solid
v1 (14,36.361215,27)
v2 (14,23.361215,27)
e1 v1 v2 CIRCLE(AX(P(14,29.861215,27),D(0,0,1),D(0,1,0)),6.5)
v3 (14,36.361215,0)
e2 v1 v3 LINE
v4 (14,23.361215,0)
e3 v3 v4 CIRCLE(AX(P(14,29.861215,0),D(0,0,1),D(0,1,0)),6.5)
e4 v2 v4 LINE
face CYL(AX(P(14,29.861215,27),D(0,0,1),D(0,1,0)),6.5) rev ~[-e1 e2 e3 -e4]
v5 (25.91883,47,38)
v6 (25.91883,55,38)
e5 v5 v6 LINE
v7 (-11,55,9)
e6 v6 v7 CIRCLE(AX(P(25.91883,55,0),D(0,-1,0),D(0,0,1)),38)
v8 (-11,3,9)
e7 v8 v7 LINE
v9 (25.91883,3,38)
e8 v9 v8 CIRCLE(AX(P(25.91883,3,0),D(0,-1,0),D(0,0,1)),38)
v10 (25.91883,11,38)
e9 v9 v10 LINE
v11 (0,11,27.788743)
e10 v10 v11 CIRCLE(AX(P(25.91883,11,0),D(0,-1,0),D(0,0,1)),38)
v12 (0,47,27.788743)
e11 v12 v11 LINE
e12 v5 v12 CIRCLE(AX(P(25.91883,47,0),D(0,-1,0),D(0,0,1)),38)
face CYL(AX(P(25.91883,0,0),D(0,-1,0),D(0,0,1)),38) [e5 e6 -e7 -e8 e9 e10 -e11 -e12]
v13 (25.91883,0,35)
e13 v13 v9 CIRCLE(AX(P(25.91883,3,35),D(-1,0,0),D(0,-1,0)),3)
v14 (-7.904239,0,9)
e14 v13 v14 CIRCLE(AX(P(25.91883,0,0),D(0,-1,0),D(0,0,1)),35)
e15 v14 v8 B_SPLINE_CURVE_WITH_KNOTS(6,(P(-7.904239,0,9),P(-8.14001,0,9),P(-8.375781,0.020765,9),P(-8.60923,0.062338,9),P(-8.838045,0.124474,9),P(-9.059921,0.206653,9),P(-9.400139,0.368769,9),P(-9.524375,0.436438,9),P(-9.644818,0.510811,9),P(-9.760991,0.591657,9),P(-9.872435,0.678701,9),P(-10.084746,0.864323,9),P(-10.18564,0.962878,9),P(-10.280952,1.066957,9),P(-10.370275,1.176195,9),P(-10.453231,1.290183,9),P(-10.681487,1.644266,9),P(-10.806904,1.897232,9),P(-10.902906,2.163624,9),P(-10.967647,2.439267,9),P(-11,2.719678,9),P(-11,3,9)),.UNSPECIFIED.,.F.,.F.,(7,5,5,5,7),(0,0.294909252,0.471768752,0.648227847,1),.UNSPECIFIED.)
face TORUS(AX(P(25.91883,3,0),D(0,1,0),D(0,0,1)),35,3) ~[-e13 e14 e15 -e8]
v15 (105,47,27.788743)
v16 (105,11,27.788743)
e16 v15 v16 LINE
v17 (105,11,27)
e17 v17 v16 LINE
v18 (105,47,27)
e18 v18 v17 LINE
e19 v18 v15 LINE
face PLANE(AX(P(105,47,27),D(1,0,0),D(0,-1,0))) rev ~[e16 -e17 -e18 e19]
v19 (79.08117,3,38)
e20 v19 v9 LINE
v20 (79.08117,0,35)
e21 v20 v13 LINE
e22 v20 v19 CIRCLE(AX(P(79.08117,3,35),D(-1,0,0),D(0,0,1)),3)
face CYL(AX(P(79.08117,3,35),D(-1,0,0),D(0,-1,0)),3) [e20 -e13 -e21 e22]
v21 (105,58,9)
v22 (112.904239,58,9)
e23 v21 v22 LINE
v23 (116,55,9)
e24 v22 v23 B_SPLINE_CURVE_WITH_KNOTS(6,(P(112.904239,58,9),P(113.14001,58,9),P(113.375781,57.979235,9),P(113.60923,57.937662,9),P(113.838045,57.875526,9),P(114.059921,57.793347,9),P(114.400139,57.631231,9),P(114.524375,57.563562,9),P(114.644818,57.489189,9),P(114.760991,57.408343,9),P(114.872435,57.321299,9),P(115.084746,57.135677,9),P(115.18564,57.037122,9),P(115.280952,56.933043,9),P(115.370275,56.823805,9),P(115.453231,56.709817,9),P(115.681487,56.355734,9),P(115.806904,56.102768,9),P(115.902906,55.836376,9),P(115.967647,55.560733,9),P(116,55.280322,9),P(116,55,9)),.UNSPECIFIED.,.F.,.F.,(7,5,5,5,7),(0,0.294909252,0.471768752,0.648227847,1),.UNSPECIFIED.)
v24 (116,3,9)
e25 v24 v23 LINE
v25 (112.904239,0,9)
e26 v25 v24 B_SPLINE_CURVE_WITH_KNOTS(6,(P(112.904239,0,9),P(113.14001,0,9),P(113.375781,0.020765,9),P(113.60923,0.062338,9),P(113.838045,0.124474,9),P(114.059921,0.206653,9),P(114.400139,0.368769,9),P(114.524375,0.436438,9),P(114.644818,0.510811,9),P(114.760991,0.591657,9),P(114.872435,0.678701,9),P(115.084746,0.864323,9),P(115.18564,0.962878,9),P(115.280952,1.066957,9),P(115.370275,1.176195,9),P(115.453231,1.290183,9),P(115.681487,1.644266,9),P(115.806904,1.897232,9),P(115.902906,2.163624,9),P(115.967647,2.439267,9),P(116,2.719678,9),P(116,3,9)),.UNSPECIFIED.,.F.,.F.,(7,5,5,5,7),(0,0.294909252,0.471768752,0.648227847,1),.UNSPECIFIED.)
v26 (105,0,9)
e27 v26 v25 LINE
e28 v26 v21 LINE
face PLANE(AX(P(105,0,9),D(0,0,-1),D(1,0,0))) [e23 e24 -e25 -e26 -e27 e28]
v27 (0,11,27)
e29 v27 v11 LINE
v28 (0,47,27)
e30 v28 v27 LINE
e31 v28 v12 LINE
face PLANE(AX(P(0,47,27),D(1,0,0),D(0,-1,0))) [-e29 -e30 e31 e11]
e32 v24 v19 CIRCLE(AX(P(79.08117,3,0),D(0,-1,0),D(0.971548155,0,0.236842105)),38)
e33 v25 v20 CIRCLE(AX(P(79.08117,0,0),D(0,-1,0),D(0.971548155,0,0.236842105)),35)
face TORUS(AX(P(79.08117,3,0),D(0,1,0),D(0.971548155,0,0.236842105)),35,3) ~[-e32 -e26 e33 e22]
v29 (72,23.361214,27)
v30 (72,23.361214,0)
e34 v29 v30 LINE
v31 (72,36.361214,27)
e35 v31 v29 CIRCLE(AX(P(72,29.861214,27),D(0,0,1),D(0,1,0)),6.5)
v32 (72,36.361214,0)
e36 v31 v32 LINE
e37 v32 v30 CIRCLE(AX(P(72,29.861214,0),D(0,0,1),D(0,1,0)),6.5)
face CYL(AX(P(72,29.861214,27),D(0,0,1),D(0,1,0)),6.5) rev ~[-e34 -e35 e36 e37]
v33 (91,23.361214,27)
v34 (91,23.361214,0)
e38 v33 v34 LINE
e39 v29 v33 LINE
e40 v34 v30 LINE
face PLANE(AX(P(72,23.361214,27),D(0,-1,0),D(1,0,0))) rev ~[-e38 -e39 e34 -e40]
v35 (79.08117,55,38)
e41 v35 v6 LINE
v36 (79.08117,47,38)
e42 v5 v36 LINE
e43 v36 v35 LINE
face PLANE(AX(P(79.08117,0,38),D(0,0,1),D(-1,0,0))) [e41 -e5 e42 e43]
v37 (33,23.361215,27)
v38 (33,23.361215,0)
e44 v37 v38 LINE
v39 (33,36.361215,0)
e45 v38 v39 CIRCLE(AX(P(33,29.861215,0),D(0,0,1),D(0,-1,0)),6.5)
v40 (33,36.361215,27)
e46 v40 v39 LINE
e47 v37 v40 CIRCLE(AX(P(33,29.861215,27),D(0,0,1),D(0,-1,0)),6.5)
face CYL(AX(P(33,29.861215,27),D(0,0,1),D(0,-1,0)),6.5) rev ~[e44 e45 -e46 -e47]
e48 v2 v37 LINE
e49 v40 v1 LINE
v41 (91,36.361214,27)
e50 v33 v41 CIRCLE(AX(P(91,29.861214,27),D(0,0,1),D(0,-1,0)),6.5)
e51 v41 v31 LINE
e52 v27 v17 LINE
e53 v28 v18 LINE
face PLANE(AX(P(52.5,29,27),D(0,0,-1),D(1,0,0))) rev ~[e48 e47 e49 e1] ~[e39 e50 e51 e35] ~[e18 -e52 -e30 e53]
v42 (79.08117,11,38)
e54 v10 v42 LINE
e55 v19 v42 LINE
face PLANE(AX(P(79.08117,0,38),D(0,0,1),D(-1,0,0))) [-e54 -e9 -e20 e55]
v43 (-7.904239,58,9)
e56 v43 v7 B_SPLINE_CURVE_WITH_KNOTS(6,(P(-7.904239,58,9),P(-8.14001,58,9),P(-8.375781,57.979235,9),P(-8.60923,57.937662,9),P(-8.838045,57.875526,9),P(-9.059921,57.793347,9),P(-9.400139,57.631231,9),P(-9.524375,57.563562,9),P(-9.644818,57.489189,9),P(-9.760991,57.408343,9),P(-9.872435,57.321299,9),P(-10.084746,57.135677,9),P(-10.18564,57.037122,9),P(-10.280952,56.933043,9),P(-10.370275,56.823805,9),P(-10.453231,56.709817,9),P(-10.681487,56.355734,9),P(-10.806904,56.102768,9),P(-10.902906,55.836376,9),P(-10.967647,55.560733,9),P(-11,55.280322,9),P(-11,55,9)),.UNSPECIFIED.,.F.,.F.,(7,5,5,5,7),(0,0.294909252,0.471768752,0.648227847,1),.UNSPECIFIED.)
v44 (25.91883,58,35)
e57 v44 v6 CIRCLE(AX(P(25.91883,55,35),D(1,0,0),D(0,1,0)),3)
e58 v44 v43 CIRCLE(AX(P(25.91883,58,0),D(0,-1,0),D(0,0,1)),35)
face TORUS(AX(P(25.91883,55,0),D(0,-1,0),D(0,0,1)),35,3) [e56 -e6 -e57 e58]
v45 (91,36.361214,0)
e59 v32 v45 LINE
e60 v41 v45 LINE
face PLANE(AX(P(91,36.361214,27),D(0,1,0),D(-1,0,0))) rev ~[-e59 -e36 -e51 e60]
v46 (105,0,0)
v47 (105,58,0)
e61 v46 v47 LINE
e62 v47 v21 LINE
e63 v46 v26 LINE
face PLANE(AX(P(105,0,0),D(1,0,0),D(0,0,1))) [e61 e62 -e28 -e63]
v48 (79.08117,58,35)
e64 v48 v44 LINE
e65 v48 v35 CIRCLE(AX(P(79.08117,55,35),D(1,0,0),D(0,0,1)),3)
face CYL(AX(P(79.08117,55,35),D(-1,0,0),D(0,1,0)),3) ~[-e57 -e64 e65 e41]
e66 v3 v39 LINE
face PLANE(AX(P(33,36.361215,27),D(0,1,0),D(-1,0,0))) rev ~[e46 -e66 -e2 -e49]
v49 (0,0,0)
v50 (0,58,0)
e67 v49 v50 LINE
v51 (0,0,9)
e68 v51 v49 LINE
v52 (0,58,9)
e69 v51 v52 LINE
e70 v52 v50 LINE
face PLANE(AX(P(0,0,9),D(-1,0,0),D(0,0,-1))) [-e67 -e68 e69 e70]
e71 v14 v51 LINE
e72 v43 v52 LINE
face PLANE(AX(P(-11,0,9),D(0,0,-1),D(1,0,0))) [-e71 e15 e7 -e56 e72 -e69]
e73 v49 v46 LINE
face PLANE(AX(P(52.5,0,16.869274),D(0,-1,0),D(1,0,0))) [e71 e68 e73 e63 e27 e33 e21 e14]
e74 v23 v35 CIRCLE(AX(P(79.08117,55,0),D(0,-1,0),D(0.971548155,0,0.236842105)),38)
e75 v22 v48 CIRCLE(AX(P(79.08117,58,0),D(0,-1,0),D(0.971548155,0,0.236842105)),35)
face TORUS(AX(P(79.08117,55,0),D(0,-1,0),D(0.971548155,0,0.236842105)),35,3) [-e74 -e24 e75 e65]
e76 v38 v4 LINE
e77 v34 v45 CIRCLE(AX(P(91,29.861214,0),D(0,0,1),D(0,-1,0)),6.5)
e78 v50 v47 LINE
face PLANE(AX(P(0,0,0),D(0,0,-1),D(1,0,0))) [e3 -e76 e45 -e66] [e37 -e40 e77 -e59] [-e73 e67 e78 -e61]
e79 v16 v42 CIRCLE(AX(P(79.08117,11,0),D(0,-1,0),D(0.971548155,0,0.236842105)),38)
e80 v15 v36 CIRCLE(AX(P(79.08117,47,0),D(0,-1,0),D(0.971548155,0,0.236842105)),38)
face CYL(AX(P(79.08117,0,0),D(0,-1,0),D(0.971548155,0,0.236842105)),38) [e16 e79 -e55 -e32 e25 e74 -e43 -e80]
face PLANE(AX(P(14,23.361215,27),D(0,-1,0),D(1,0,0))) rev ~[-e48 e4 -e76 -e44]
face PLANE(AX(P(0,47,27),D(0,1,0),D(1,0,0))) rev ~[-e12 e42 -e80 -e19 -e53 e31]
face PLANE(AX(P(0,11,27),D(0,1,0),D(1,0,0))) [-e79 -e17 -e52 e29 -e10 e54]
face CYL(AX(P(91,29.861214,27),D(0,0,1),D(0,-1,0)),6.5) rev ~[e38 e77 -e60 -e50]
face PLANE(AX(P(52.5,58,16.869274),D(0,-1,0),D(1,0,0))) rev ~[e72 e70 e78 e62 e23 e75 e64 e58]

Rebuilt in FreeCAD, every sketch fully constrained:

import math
import FreeCAD as App
import Part
import Sketcher
from FreeCAD import Vector


def edges_at(feature, points):
    """Names of the edges that pass closest to the given points."""
    edges = feature.Shape.Edges
    near = lambda p: min(range(len(edges)), key=lambda i: edges[i].distToShape(Part.Vertex(*p))[0])
    return sorted({f"Edge{near(p) + 1}" for p in points})

doc = App.newDocument("Part")
body = doc.addObject("PartDesign::Body", "Body")

sketch1 = doc.addObject("Sketcher::SketchObject", "Sketch")
body.addObject(sketch1)
sketch1.AttachmentSupport = (doc.XZ_Plane, [""])
sketch1.MapMode = "FlatFace"
sketch1.addGeometry([
    Part.LineSegment(Vector(0, 9, 0), Vector(0, 0, 0)),
    Part.LineSegment(Vector(0, 0, 0), Vector(105, 0, 0)),
    Part.LineSegment(Vector(105, 0, 0), Vector(105, 9, 0)),
    Part.LineSegment(Vector(105, 9, 0), Vector(116, 9, 0)),
    Part.ArcOfCircle(Part.Circle(Vector(79.08117, 0, 0), Vector(0, 0, 1), 38), math.radians(13.700233), math.radians(90)),
    Part.LineSegment(Vector(79.08117, 38, 0), Vector(25.91883, 38, 0)),
    Part.ArcOfCircle(Part.Circle(Vector(25.91883, 0, 0), Vector(0, 0, 1), 38), math.radians(90), math.radians(166.299767)),
    Part.LineSegment(Vector(-11, 9, 0), Vector(0, 9, 0)),
], False)
sketch1.addConstraint([
    Sketcher.Constraint("Coincident", 0, 2, 1, 1),
    Sketcher.Constraint("Coincident", 1, 2, 2, 1),
    Sketcher.Constraint("Coincident", 2, 2, 3, 1),
    Sketcher.Constraint("Coincident", 3, 2, 4, 1),
    Sketcher.Constraint("Tangent", 4, 2, 5, 1),
    Sketcher.Constraint("Tangent", 5, 2, 6, 1),
    Sketcher.Constraint("Coincident", 6, 2, 7, 1),
    Sketcher.Constraint("Coincident", 7, 2, 0, 1),
    Sketcher.Constraint("Vertical", 0),
    Sketcher.Constraint("Horizontal", 1),
    Sketcher.Constraint("Vertical", 2),
    Sketcher.Constraint("Horizontal", 3),
    Sketcher.Constraint("Horizontal", 5),
    Sketcher.Constraint("Horizontal", 7),
    Sketcher.Constraint("Coincident", 0, 2, -1, 1),
    Sketcher.Constraint("Equal", 4, 6),
    Sketcher.Constraint("PointOnObject", 4, 3, -1),
    Sketcher.Constraint("Horizontal", 3, 2, 6, 2),
    Sketcher.Constraint("Equal", 3, 7),
    Sketcher.Constraint("Radius", 4, 38.0),
    Sketcher.Constraint("DistanceX", 1, 1, 1, 2, 105.0),
    Sketcher.Constraint("DistanceX", 3, 1, 3, 2, 11.0),
    Sketcher.Constraint("DistanceY", 0, 2, 0, 1, 9.0),
])
pad1 = doc.addObject("PartDesign::Pad", "Pad")
body.addObject(pad1)
pad1.Profile = sketch1
pad1.Length = 58
pad1.Reversed = True

sketch2 = doc.addObject("Sketcher::SketchObject", "Sketch001")
body.addObject(sketch2)
sketch2.AttachmentSupport = (doc.XY_Plane, [""])
sketch2.MapMode = "FlatFace"
sketch2.AttachmentOffset = App.Placement(Vector(0, 0, 27), App.Rotation())
sketch2.addGeometry([
    Part.LineSegment(Vector(0, 11, 0), Vector(0, 47, 0)),
    Part.LineSegment(Vector(0, 47, 0), Vector(105, 47, 0)),
    Part.LineSegment(Vector(105, 47, 0), Vector(105, 11, 0)),
    Part.LineSegment(Vector(105, 11, 0), Vector(0, 11, 0)),
], False)
sketch2.addConstraint([
    Sketcher.Constraint("Coincident", 0, 2, 1, 1),
    Sketcher.Constraint("Coincident", 1, 2, 2, 1),
    Sketcher.Constraint("Coincident", 2, 2, 3, 1),
    Sketcher.Constraint("Coincident", 3, 2, 0, 1),
    Sketcher.Constraint("Vertical", 0),
    Sketcher.Constraint("Horizontal", 1),
    Sketcher.Constraint("Vertical", 2),
    Sketcher.Constraint("Horizontal", 3),
    Sketcher.Constraint("PointOnObject", 0, 2, -2),
    Sketcher.Constraint("DistanceX", 1, 1, 1, 2, 105.0),
    Sketcher.Constraint("DistanceY", 0, 1, 0, 2, 36.0),
    Sketcher.Constraint("DistanceY", -1, 1, 0, 2, 47.0),
])
pocket1 = doc.addObject("PartDesign::Pocket", "Pocket")
body.addObject(pocket1)
pocket1.Profile = sketch2
pocket1.Length = 11
pocket1.Reversed = True
doc.recompute()

fillet = doc.addObject("PartDesign::Fillet", "Fillet")
body.addObject(fillet)
fillet.Base = (pocket1, edges_at(pocket1, [(102.555, 58, 29.883), (52.5, 58, 38), (2.445, 58, 29.883)]))
fillet.Radius = 3
doc.recompute()

fillet2 = doc.addObject("PartDesign::Fillet", "Fillet001")
body.addObject(fillet2)
fillet2.Base = (fillet, edges_at(fillet, [(52.5, 0, 38), (2.445, 0, 29.883), (102.555, 0, 29.883)]))
fillet2.Radius = 3

sketch3 = doc.addObject("Sketcher::SketchObject", "Sketch002")
body.addObject(sketch3)
sketch3.AttachmentSupport = (doc.XY_Plane, [""])
sketch3.MapMode = "FlatFace"
sketch3.AttachmentOffset = App.Placement(Vector(0, 0, 27), App.Rotation())
sketch3.addGeometry([
    Part.LineSegment(Vector(72, 23.361214, 0), Vector(91, 23.361214, 0)),
    Part.ArcOfCircle(Part.Circle(Vector(91, 29.861214, 0), Vector(0, 0, 1), 6.5), math.radians(-90), math.radians(90)),
    Part.LineSegment(Vector(91, 36.361214, 0), Vector(72, 36.361214, 0)),
    Part.ArcOfCircle(Part.Circle(Vector(72, 29.861214, 0), Vector(0, 0, 1), 6.5), math.radians(90), math.radians(270)),
    Part.LineSegment(Vector(33, 36.361215, 0), Vector(14, 36.361215, 0)),
    Part.ArcOfCircle(Part.Circle(Vector(14, 29.861215, 0), Vector(0, 0, 1), 6.5), math.radians(90), math.radians(270)),
    Part.LineSegment(Vector(14, 23.361215, 0), Vector(33, 23.361215, 0)),
    Part.ArcOfCircle(Part.Circle(Vector(33, 29.861215, 0), Vector(0, 0, 1), 6.5), math.radians(-90), math.radians(90)),
], False)
sketch3.addConstraint([
    Sketcher.Constraint("Tangent", 0, 2, 1, 1),
    Sketcher.Constraint("Tangent", 1, 2, 2, 1),
    Sketcher.Constraint("Tangent", 2, 2, 3, 1),
    Sketcher.Constraint("Tangent", 3, 2, 0, 1),
    Sketcher.Constraint("Tangent", 4, 2, 5, 1),
    Sketcher.Constraint("Tangent", 5, 2, 6, 1),
    Sketcher.Constraint("Tangent", 6, 2, 7, 1),
    Sketcher.Constraint("Tangent", 7, 2, 4, 1),
    Sketcher.Constraint("Horizontal", 0),
    Sketcher.Constraint("Horizontal", 2),
    Sketcher.Constraint("Horizontal", 4),
    Sketcher.Constraint("Horizontal", 6),
    Sketcher.Constraint("Equal", 3, 5),
    Sketcher.Constraint("Horizontal", 3, 3, 5, 3),
    Sketcher.Constraint("Equal", 2, 4),
    Sketcher.Constraint("Radius", 1, 6.5),
    Sketcher.Constraint("DistanceX", 0, 1, 0, 2, 19.0),
    Sketcher.Constraint("DistanceX", -1, 1, 1, 3, 91.0),
    Sketcher.Constraint("DistanceX", -1, 1, 5, 3, 14.0),
    Sketcher.Constraint("DistanceY", -1, 1, 1, 3, 29.861214),
])
pocket2 = doc.addObject("PartDesign::Pocket", "Pocket001")
body.addObject(pocket2)
pocket2.Profile = sketch3
pocket2.Length = 50

doc.recompute()
